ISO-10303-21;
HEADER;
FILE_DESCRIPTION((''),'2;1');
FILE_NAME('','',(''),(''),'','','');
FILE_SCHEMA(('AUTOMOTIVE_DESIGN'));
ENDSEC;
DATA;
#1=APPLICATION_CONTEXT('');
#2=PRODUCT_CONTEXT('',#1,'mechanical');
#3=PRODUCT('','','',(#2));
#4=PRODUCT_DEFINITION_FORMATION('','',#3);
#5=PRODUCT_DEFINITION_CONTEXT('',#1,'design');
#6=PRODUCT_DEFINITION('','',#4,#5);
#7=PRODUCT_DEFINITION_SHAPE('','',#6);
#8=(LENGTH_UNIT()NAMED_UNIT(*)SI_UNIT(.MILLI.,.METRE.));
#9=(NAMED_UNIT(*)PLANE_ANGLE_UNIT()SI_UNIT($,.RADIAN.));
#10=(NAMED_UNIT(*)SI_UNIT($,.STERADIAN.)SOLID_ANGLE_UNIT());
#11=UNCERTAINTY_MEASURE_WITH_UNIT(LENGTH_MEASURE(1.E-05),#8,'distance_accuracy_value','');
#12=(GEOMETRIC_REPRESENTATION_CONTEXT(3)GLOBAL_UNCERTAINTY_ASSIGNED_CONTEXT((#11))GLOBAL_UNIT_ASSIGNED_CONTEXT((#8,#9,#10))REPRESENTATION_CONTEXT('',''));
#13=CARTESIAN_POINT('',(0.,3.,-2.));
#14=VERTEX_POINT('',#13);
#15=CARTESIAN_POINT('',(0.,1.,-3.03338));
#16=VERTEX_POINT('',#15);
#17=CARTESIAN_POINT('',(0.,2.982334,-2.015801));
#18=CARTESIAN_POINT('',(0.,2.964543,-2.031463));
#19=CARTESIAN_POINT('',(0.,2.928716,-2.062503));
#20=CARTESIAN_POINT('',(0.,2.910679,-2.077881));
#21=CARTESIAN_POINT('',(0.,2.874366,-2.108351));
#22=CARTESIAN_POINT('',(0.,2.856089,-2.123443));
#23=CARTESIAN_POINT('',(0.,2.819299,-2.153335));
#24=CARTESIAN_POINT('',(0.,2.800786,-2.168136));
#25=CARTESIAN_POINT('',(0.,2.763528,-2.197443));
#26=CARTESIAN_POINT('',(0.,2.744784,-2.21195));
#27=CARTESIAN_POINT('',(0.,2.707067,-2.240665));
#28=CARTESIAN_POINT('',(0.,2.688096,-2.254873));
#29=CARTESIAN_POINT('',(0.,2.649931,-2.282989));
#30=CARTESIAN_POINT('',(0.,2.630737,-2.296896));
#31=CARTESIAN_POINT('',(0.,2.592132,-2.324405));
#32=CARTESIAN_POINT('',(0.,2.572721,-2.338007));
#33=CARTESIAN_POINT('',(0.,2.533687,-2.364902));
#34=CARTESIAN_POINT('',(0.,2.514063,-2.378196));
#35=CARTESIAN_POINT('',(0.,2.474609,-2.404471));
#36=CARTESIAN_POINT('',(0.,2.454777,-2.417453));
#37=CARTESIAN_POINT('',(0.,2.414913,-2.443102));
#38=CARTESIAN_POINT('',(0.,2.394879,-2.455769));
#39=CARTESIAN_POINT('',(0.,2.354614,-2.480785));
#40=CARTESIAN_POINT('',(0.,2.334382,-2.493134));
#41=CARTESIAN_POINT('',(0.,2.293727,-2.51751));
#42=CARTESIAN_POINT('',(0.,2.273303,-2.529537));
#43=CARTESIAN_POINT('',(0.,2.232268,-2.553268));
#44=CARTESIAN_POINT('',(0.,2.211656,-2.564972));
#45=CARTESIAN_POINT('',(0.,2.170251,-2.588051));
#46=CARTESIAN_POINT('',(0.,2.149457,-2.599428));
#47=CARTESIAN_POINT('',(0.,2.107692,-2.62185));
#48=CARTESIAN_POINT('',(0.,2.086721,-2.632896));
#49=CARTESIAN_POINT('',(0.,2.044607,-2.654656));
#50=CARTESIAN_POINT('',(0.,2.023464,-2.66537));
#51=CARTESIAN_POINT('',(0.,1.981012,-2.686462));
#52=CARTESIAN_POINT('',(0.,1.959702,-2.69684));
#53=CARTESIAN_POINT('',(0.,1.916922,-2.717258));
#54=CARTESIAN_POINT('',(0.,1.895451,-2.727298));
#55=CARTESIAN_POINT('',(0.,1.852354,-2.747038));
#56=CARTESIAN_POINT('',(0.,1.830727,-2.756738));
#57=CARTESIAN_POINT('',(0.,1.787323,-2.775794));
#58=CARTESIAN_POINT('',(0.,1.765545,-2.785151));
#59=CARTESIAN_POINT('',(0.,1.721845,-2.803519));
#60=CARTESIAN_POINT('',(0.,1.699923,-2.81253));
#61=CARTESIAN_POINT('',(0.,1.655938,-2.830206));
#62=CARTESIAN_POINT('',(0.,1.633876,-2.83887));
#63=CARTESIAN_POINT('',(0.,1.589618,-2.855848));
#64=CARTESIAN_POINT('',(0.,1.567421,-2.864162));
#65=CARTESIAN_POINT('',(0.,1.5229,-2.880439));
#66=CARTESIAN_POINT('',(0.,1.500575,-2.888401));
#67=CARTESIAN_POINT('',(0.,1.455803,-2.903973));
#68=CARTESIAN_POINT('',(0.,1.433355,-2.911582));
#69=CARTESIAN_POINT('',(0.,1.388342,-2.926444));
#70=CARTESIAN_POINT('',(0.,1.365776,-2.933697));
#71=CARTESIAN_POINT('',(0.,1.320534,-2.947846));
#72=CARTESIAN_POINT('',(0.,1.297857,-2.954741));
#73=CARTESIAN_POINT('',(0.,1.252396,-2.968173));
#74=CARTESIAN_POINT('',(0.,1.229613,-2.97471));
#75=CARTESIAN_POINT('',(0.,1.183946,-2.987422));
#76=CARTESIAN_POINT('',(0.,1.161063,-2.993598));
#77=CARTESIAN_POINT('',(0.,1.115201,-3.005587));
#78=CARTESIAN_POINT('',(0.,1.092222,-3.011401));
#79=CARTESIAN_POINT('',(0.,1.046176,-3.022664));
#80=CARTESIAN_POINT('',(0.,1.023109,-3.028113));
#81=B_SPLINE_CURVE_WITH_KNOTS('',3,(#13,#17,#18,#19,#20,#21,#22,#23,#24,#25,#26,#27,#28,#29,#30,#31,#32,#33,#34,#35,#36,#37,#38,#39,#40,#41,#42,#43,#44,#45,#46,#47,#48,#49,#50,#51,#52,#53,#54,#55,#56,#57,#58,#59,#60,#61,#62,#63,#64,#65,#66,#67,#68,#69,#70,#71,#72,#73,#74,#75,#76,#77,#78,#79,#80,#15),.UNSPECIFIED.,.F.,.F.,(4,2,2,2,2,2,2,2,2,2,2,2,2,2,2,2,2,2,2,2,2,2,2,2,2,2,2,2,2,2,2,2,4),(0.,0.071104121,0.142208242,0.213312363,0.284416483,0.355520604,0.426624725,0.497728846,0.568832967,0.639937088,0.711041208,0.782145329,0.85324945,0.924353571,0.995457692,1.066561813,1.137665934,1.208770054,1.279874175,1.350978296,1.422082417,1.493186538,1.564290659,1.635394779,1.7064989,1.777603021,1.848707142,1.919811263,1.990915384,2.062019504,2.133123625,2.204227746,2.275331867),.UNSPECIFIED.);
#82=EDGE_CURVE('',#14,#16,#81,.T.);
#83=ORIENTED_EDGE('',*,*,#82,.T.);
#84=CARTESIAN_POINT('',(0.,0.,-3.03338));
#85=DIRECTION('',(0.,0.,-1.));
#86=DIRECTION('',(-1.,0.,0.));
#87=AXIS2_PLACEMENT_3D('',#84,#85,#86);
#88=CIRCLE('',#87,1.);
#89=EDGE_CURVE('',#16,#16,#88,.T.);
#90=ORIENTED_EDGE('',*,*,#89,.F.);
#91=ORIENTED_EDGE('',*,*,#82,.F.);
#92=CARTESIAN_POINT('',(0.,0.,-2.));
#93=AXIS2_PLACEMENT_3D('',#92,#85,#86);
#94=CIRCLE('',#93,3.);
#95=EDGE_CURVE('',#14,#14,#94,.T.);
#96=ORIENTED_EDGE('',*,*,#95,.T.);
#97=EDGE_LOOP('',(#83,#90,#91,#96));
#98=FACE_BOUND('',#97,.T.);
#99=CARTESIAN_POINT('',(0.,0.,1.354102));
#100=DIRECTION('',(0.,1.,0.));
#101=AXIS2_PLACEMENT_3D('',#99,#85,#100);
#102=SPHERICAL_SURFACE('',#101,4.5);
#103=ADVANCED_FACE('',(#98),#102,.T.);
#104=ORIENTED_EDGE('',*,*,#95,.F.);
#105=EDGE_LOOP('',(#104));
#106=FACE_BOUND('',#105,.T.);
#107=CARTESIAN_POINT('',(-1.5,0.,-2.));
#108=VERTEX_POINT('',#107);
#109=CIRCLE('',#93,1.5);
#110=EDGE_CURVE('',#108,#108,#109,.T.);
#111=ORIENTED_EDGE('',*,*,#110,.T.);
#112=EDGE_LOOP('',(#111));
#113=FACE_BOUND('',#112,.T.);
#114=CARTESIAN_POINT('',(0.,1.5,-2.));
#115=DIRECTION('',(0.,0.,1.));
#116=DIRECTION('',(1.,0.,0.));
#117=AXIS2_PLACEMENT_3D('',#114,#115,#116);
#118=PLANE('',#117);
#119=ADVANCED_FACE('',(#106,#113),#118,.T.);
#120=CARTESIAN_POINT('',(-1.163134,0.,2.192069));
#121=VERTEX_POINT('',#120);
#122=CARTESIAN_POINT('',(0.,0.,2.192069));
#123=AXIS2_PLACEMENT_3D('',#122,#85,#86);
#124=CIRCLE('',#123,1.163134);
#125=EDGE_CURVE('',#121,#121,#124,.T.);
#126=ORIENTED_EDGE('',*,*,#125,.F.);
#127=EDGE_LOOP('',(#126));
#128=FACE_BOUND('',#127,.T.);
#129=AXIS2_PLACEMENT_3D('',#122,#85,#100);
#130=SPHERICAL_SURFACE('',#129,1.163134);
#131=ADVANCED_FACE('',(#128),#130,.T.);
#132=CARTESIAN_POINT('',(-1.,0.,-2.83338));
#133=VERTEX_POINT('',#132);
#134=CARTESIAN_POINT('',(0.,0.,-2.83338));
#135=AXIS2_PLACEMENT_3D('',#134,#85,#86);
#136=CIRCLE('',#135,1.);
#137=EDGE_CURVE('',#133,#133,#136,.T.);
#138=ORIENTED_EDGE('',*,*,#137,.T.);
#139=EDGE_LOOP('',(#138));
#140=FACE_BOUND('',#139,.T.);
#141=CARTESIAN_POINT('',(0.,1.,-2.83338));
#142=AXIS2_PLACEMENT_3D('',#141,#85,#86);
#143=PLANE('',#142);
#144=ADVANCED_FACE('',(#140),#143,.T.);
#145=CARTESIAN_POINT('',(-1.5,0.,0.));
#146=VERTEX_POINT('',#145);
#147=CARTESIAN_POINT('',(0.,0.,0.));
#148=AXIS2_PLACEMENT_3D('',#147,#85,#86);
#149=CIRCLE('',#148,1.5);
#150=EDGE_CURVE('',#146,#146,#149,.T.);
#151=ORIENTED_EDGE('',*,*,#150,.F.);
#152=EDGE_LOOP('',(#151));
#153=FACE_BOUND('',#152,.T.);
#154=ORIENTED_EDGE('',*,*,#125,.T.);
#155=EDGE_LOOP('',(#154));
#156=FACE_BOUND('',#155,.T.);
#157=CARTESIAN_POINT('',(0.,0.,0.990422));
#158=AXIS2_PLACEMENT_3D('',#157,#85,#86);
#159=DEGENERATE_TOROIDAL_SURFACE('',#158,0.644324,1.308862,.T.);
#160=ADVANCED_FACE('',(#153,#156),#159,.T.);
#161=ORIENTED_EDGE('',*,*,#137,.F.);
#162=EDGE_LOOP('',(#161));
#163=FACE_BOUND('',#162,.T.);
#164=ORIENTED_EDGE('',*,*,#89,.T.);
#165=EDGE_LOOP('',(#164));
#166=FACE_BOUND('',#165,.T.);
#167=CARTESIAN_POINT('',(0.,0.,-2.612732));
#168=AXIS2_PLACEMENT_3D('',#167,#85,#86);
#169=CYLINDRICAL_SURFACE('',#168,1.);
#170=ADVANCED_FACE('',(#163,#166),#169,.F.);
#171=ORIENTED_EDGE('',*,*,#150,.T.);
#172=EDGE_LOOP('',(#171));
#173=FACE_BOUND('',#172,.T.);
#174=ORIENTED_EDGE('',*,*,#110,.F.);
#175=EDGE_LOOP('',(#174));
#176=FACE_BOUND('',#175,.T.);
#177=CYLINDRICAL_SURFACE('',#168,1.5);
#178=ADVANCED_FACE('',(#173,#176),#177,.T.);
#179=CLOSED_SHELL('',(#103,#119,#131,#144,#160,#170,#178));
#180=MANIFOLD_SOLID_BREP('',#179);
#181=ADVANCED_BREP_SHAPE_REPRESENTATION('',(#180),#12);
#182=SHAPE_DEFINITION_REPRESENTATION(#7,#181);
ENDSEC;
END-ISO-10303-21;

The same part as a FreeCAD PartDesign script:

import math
import FreeCAD as App
import Part
import Sketcher

V = App.Vector

doc = App.newDocument("Part")
params = doc.addObject("Spreadsheet::Sheet", "Params")
for row, (alias, value) in enumerate([
    ("sketch1_radius", "4.5 mm"),
    ("sketch1_width", "1 mm"),
    ("sketch1_height", "2 mm"),
    ("sketch1_width2", "1.5 mm"),
    ("sketch1_height2", "0.2 mm"),
    ("revolution_angle", "360 deg"),
], start=1):
    params.set(f"A{row}", alias)
    params.set(f"B{row}", "=" + value)
    params.setAlias(f"B{row}", alias)

body = doc.addObject("PartDesign::Body", "Body")

sketch1 = body.newObject("Sketcher::SketchObject", "Sketch")
sketch1.AttachmentSupport = (doc.getObject("YZ_Plane"), [""])
sketch1.MapMode = "FlatFace"
sketch1.addGeometry(Part.LineSegment(V(1.5, -2, 0), V(1.5, 0, 0)), False)
sketch1.addGeometry(Part.ArcOfCircle(Part.Circle(V(0.644324, 0.990422, 0), V(0, 0, 1), 1.308862), math.radians(-49.174597), math.radians(66.64773)), False)
sketch1.addGeometry(Part.ArcOfCircle(Part.Circle(V(0, 2.192069, 0), V(0, 0, 1), 1.163134), math.radians(0), math.radians(90)), False)
sketch1.addGeometry(Part.LineSegment(V(0, 3.355203, 0), V(0, -2.83338, 0)), False)
sketch1.addGeometry(Part.LineSegment(V(0, -2.83338, 0), V(1, -2.83338, 0)), False)
sketch1.addGeometry(Part.LineSegment(V(1, -2.83338, 0), V(1, -3.03338, 0)), False)
sketch1.addGeometry(Part.ArcOfCircle(Part.Circle(V(0, 1.354102, 0), V(0, 0, 1), 4.5), math.radians(-77.160412), math.radians(-48.189685)), False)
sketch1.addGeometry(Part.LineSegment(V(3, -2, 0), V(1.5, -2, 0)), False)
sketch1.addConstraint(Sketcher.Constraint("Coincident", 0, 2, 1, 1))
sketch1.addConstraint(Sketcher.Constraint("Coincident", 1, 2, 2, 1))
sketch1.addConstraint(Sketcher.Constraint("Coincident", 2, 2, 3, 1))
sketch1.addConstraint(Sketcher.Constraint("Coincident", 3, 2, 4, 1))
sketch1.addConstraint(Sketcher.Constraint("Coincident", 4, 2, 5, 1))
sketch1.addConstraint(Sketcher.Constraint("Coincident", 5, 2, 6, 1))
sketch1.addConstraint(Sketcher.Constraint("Coincident", 6, 2, 7, 1))
sketch1.addConstraint(Sketcher.Constraint("Coincident", 7, 2, 0, 1))
sketch1.addConstraint(Sketcher.Constraint("Vertical", 0))
sketch1.addConstraint(Sketcher.Constraint("Vertical", 3))
sketch1.addConstraint(Sketcher.Constraint("Horizontal", 4))
sketch1.addConstraint(Sketcher.Constraint("Vertical", 5))
sketch1.addConstraint(Sketcher.Constraint("Horizontal", 7))
sketch1.addConstraint(Sketcher.Constraint("PointOnObject", 2, 3, -2))
sketch1.addConstraint(Sketcher.Constraint("PointOnObject", 6, 3, -2))
sketch1.addConstraint(Sketcher.Constraint("PointOnObject", 0, 2, -1))
sketch1.addConstraint(Sketcher.Constraint("PointOnObject", 2, 2, -2))
sketch1.addConstraint(Sketcher.Constraint("Horizontal", 2, 3, 1, 2))
sketch1.addConstraint(Sketcher.Constraint("Radius", 6, 4.5))
sketch1.addConstraint(Sketcher.Constraint("DistanceX", 4, 1, 4, 2, 1.0))
sketch1.addConstraint(Sketcher.Constraint("DistanceY", 0, 1, 0, 2, 2.0))
sketch1.addConstraint(Sketcher.Constraint("DistanceX", 7, 2, 7, 1, 1.5))
sketch1.addConstraint(Sketcher.Constraint("DistanceY", 5, 2, 5, 1, 0.2))
sketch1.addConstraint(Sketcher.Constraint("DistanceX", -1, 1, 6, 2, 3.0))
sketch1.addConstraint(Sketcher.Constraint("Radius", 1, 1.308862))
sketch1.addConstraint(Sketcher.Constraint("Radius", 2, 1.163134))
sketch1.addConstraint(Sketcher.Constraint("DistanceY", 6, 3, 2, 2, 2.001101))
sketch1.setExpression("Constraints[18]", "Params.sketch1_radius")
sketch1.setExpression("Constraints[19]", "Params.sketch1_width")
sketch1.setExpression("Constraints[20]", "Params.sketch1_height")
sketch1.setExpression("Constraints[21]", "Params.sketch1_width2")
sketch1.setExpression("Constraints[22]", "Params.sketch1_height2")
revolution = body.newObject("PartDesign::Revolution", "Revolution")
revolution.Profile = sketch1
revolution.ReferenceAxis = (sketch1, ["V_Axis"])
revolution.setExpression("Angle", "Params.revolution_angle")

doc.recompute()
